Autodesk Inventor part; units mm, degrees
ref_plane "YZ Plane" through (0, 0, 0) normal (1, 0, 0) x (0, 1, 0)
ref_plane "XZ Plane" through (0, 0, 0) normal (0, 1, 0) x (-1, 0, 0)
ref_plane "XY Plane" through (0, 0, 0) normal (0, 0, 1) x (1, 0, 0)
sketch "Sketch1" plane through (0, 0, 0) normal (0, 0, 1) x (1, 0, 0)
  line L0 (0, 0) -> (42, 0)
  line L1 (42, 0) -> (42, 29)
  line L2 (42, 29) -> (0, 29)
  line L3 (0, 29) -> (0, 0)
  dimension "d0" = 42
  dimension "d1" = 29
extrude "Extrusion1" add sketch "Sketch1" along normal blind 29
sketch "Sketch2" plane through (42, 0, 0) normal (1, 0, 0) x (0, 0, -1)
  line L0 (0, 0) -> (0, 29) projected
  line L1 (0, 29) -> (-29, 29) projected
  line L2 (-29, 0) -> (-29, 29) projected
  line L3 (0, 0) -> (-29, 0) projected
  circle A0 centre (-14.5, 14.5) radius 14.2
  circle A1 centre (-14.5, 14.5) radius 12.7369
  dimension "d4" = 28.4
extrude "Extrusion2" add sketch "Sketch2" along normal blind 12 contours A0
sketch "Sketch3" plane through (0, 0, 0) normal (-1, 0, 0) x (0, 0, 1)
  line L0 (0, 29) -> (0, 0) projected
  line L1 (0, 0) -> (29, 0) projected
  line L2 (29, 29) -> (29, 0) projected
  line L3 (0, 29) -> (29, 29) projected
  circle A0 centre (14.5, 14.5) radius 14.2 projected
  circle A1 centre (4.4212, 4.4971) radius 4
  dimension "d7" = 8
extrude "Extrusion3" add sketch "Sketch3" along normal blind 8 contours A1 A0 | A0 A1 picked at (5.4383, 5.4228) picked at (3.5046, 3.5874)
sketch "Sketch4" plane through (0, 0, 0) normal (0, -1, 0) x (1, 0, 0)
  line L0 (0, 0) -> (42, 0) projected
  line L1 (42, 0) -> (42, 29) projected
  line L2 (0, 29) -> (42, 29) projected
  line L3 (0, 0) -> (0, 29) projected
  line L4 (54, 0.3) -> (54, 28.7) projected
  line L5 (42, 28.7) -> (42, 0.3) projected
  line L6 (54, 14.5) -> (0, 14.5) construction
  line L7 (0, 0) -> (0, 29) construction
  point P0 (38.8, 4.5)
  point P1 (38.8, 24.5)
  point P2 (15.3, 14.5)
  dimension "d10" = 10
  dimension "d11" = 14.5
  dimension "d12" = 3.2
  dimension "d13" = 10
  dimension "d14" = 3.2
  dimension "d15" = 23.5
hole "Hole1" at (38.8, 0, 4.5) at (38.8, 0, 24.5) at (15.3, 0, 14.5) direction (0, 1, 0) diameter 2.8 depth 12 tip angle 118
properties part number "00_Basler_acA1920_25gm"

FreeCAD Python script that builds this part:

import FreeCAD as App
import Part
import Sketcher

doc = App.newDocument("Part")
body = doc.addObject("PartDesign::Body", "Body")

sketch1 = body.newObject("Sketcher::SketchObject", "Sketch")
sketch1.AttachmentSupport = (doc.getObject("XY_Plane"), [""])
sketch1.MapMode = "FlatFace"
sketch1.addGeometry(Part.LineSegment(App.Vector(0, 29, 0), App.Vector(0, 0, 0)), False)
sketch1.addGeometry(Part.LineSegment(App.Vector(0, 0, 0), App.Vector(42, 0, 0)), False)
sketch1.addGeometry(Part.LineSegment(App.Vector(42, 0, 0), App.Vector(42, 29, 0)), False)
sketch1.addGeometry(Part.LineSegment(App.Vector(42, 29, 0), App.Vector(0, 29, 0)), False)
sketch1.addConstraint(Sketcher.Constraint("Coincident", 0, 2, 1, 1))
sketch1.addConstraint(Sketcher.Constraint("Coincident", 1, 2, 2, 1))
sketch1.addConstraint(Sketcher.Constraint("Coincident", 2, 2, 3, 1))
sketch1.addConstraint(Sketcher.Constraint("Coincident", 3, 2, 0, 1))
sketch1.addConstraint(Sketcher.Constraint("Vertical", 0))
sketch1.addConstraint(Sketcher.Constraint("Horizontal", 1))
sketch1.addConstraint(Sketcher.Constraint("Vertical", 2))
sketch1.addConstraint(Sketcher.Constraint("Horizontal", 3))
sketch1.addConstraint(Sketcher.Constraint("Coincident", 0, 2, -1, 1))
sketch1.addConstraint(Sketcher.Constraint("DistanceX", 1, 1, 1, 2, 42.0))
sketch1.addConstraint(Sketcher.Constraint("DistanceY", 0, 2, 0, 1, 29.0))
pad1 = body.newObject("PartDesign::Pad", "Pad")
pad1.Profile = sketch1
pad1.Length = 29

sketch2 = body.newObject("Sketcher::SketchObject", "Sketch001")
sketch2.AttachmentSupport = (doc.getObject("YZ_Plane"), [""])
sketch2.MapMode = "FlatFace"
sketch2.AttachmentOffset = App.Placement(App.Vector(0, 0, 42), App.Rotation())
sketch2.addGeometry(Part.Circle(App.Vector(14, 14, 0), App.Vector(0, 0, 1), 14), False)
sketch2.addGeometry(Part.Circle(App.Vector(14, 14, 0), App.Vector(0, 0, 1), 13), False)
sketch2.addConstraint(Sketcher.Constraint("Coincident", 1, 3, 0, 3))
sketch2.addConstraint(Sketcher.Constraint("Diameter", 0, 28.4))
sketch2.addConstraint(Sketcher.Constraint("Diameter", 1, 25.4738))
sketch2.addConstraint(Sketcher.Constraint("DistanceX", -1, 1, 0, 3, 14.5))
sketch2.addConstraint(Sketcher.Constraint("DistanceY", -1, 1, 0, 3, 14.5))
pad2 = body.newObject("PartDesign::Pad", "Pad001")
pad2.Profile = sketch2
pad2.Length = 12

sketch3 = body.newObject("Sketcher::SketchObject", "Sketch002")
sketch3.AttachmentSupport = (doc.getObject("YZ_Plane"), [""])
sketch3.MapMode = "FlatFace"
sketch3.addGeometry(Part.Circle(App.Vector(4.5, 4.4, 0), App.Vector(0, 0, 1), 4), False)
sketch3.addConstraint(Sketcher.Constraint("Diameter", 0, 8.0))
sketch3.addConstraint(Sketcher.Constraint("DistanceX", -1, 1, 0, 3, 4.497))
sketch3.addConstraint(Sketcher.Constraint("DistanceY", -1, 1, 0, 3, 4.4212))
pad3 = body.newObject("PartDesign::Pad", "Pad002")
pad3.Profile = sketch3
pad3.Length = 8
pad3.Reversed = True

sketch4 = body.newObject("Sketcher::SketchObject", "Sketch003")
sketch4.AttachmentSupport = (doc.getObject("XZ_Plane"), [""])
sketch4.MapMode = "FlatFace"
sketch4.addGeometry(Part.Circle(App.Vector(38.8, 4.5, 0), App.Vector(0, 0, 1), 1.4), False)
sketch4.addGeometry(Part.Circle(App.Vector(38.8, 24.5, 0), App.Vector(0, 0, 1), 1.4), False)
sketch4.addGeometry(Part.Circle(App.Vector(15.3, 14.5, 0), App.Vector(0, 0, 1), 1.4), False)
sketch4.addConstraint(Sketcher.Constraint("Equal", 0, 1))
sketch4.addConstraint(Sketcher.Constraint("Equal", 1, 2))
sketch4.addConstraint(Sketcher.Constraint("Vertical", 0, 3, 1, 3))
sketch4.addConstraint(Sketcher.Constraint("Diameter", 0, 2.8))
sketch4.addConstraint(Sketcher.Constraint("DistanceY", 0, 3, 1, 3, 20.0))
sketch4.addConstraint(Sketcher.Constraint("DistanceY", 0, 3, 2, 3, 10.0))
sketch4.addConstraint(Sketcher.Constraint("DistanceX", -1, 1, 0, 3, 38.8))
sketch4.addConstraint(Sketcher.Constraint("DistanceY", -1, 1, 0, 3, 4.5))
sketch4.addConstraint(Sketcher.Constraint("DistanceX", -1, 1, 2, 3, 15.3))
doc.recompute()
hole = body.newObject("PartDesign::Hole", "Hole")
hole.Profile = sketch4
hole.ThreadType = "None"
hole.Diameter = 2.8
hole.DepthType = "Dimension"
hole.Depth = 12
hole.DrillPoint = "Angled"
hole.DrillPointAngle = 118

doc.recompute()
